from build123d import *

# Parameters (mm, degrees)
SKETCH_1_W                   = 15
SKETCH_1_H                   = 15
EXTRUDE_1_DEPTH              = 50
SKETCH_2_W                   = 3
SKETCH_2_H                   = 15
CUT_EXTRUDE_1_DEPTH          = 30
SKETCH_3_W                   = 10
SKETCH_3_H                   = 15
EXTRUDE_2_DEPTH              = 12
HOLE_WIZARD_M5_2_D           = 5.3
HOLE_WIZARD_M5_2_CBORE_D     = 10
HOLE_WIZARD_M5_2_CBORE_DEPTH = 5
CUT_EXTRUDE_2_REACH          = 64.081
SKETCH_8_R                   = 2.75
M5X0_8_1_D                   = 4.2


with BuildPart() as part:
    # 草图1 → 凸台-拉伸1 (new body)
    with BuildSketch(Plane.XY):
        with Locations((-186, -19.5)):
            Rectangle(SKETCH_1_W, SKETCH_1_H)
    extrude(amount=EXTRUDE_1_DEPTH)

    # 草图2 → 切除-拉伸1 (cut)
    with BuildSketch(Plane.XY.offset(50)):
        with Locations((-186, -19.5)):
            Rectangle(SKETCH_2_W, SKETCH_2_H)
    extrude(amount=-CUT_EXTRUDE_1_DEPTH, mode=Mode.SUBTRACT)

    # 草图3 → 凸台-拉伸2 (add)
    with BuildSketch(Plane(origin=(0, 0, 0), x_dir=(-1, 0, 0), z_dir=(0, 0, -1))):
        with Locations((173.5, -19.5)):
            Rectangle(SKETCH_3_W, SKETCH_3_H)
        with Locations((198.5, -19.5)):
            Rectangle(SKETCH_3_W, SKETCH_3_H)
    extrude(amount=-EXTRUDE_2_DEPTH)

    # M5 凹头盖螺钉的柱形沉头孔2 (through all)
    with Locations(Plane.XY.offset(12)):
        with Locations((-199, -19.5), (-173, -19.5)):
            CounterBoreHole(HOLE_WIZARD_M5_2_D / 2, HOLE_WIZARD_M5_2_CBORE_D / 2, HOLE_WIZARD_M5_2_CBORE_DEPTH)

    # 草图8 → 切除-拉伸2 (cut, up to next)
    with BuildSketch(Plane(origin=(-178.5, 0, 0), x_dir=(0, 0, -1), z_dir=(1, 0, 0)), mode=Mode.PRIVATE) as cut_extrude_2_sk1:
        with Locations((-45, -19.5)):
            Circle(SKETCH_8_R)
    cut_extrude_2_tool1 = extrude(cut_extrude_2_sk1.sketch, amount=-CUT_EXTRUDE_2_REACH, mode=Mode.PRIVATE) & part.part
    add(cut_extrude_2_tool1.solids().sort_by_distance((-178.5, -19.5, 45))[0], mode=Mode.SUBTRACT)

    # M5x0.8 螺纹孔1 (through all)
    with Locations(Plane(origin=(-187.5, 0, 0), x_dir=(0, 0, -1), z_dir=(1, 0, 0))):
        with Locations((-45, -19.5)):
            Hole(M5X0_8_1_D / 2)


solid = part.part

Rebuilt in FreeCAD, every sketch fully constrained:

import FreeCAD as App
import Part
import Sketcher

V = App.Vector


def add_polygon(sketch, points):
    """Adds a closed chain of lines whose ends are joined by coincident constraints."""
    first, n = sketch.GeometryCount, len(points)
    for a, b in zip(points, points[1:] + points[:1]):
        sketch.addGeometry(Part.LineSegment(App.Vector(*a, 0), App.Vector(*b, 0)), False)
    for i in range(n):
        sketch.addConstraint(Sketcher.Constraint("Coincident", first + i, 2, first + (i + 1) % n, 1))

doc = App.newDocument("Part")
body = doc.addObject("PartDesign::Body", "Body")

# Sketch on XY plane
sketch1 = body.newObject("Sketcher::SketchObject", "Sketch")
sketch1.AttachmentSupport = (doc.getObject("XY_Plane"), [""])
sketch1.MapMode = "FlatFace"
add_polygon(sketch1, [(-194, -12), (-194, -27), (-178, -27), (-178, -12)])  # lines 0-3
sketch1.addConstraint(Sketcher.Constraint("Vertical", 0))
sketch1.addConstraint(Sketcher.Constraint("Horizontal", 1))
sketch1.addConstraint(Sketcher.Constraint("Vertical", 2))
sketch1.addConstraint(Sketcher.Constraint("Horizontal", 3))
sketch1.addConstraint(Sketcher.Constraint("Equal", 3, 0))
sketch1.addConstraint(Sketcher.Constraint("DistanceX", 1, 1, 1, 2, 15.0))
sketch1.addConstraint(Sketcher.Constraint("DistanceY", 0, 2, -1, 1, 27.0))
sketch1.addConstraint(Sketcher.Constraint("DistanceX", 0, 2, -1, 1, 193.5))
pad1 = body.newObject("PartDesign::Pad", "Pad")
pad1.Profile = sketch1
pad1.Length = 50

# Sketch on XY plane
sketch2 = body.newObject("Sketcher::SketchObject", "Sketch001")
sketch2.AttachmentSupport = (doc.getObject("XY_Plane"), [""])
sketch2.MapMode = "FlatFace"
sketch2.AttachmentOffset = App.Placement(V(0, 0, 50), App.Rotation())
add_polygon(sketch2, [(-187.5, -12), (-187.5, -27), (-184.5, -27), (-184.5, -12)])  # lines 0-3
sketch2.addConstraint(Sketcher.Constraint("Vertical", 0))
sketch2.addConstraint(Sketcher.Constraint("Horizontal", 1))
sketch2.addConstraint(Sketcher.Constraint("Vertical", 2))
sketch2.addConstraint(Sketcher.Constraint("Horizontal", 3))
sketch2.addConstraint(Sketcher.Constraint("DistanceX", 1, 1, 1, 2, 3.0))
sketch2.addConstraint(Sketcher.Constraint("DistanceY", 0, 2, 0, 1, 15.0))
sketch2.addConstraint(Sketcher.Constraint("DistanceY", 0, 2, -1, 1, 27.0))
sketch2.addConstraint(Sketcher.Constraint("DistanceX", 0, 2, -1, 1, 187.5))
pocket1 = body.newObject("PartDesign::Pocket", "Pocket")
pocket1.Profile = sketch2
pocket1.Length = 30

# Sketch on XY plane
sketch3 = body.newObject("Sketcher::SketchObject", "Sketch002")
sketch3.AttachmentSupport = (doc.getObject("XY_Plane"), [""])
sketch3.MapMode = "FlatFace"
add_polygon(sketch3, [(-168, -12), (-168, -27), (-178, -27), (-178, -12)])  # lines 0-3
add_polygon(sketch3, [(-194, -12), (-194, -27), (-204, -27), (-204, -12)])  # lines 4-7
sketch3.addConstraint(Sketcher.Constraint("Vertical", 0))
sketch3.addConstraint(Sketcher.Constraint("Horizontal", 1))
sketch3.addConstraint(Sketcher.Constraint("Vertical", 2))
sketch3.addConstraint(Sketcher.Constraint("Horizontal", 3))
sketch3.addConstraint(Sketcher.Constraint("Vertical", 4))
sketch3.addConstraint(Sketcher.Constraint("Horizontal", 5))
sketch3.addConstraint(Sketcher.Constraint("Vertical", 6))
sketch3.addConstraint(Sketcher.Constraint("Horizontal", 7))
sketch3.addConstraint(Sketcher.Constraint("Horizontal", 1, 2, 4, 2))
sketch3.addConstraint(Sketcher.Constraint("Horizontal", 3, 2, 6, 2))
sketch3.addConstraint(Sketcher.Constraint("Equal", 3, 5))
sketch3.addConstraint(Sketcher.Constraint("DistanceX", 1, 2, 1, 1, 10.0))
sketch3.addConstraint(Sketcher.Constraint("DistanceY", 0, 2, 0, 1, 15.0))
sketch3.addConstraint(Sketcher.Constraint("DistanceY", 0, 2, -1, 1, 27.0))
sketch3.addConstraint(Sketcher.Constraint("DistanceX", 4, 2, 1, 2, 15.0))
sketch3.addConstraint(Sketcher.Constraint("DistanceX", 0, 2, -1, 1, 168.5))
pad2 = body.newObject("PartDesign::Pad", "Pad001")
pad2.Profile = sketch3
pad2.Length = 12

# Sketch on XY plane
sketch4 = body.newObject("Sketcher::SketchObject", "Sketch003")
sketch4.AttachmentSupport = (doc.getObject("XY_Plane"), [""])
sketch4.MapMode = "FlatFace"
sketch4.AttachmentOffset = App.Placement(V(0, 0, 12), App.Rotation())
sketch4.addGeometry(Part.Circle(V(-199, -19.5, 0), V(0, 0, 1), 2.6), False)
sketch4.addGeometry(Part.Circle(V(-173, -19.5, 0), V(0, 0, 1), 2.6), False)
sketch4.addConstraint(Sketcher.Constraint("Equal", 0, 1))
sketch4.addConstraint(Sketcher.Constraint("Horizontal", 0, 3, 1, 3))
sketch4.addConstraint(Sketcher.Constraint("Diameter", 0, 5.3))
sketch4.addConstraint(Sketcher.Constraint("DistanceX", 0, 3, -1, 1, 199.0))
sketch4.addConstraint(Sketcher.Constraint("DistanceX", 1, 3, -1, 1, 173.0))
sketch4.addConstraint(Sketcher.Constraint("DistanceY", 0, 3, -1, 1, 19.5))
doc.recompute()
hole = body.newObject("PartDesign::Hole", "Hole")
hole.Profile = sketch4
hole.ThreadType = "None"
hole.Diameter = 5.3
hole.DepthType = "ThroughAll"
hole.HoleCutType = "Counterbore"
hole.HoleCutDiameter = 10
hole.HoleCutDepth = 5

# Sketch on YZ plane
sketch5 = body.newObject("Sketcher::SketchObject", "Sketch004")
sketch5.AttachmentSupport = (doc.getObject("YZ_Plane"), [""])
sketch5.MapMode = "FlatFace"
sketch5.AttachmentOffset = App.Placement(V(0, 0, -178.5), App.Rotation())
sketch5.addGeometry(Part.Circle(V(-19.5, 45, 0), V(0, 0, 1), 2.8), False)
sketch5.addConstraint(Sketcher.Constraint("Diameter", 0, 5.5))
sketch5.addConstraint(Sketcher.Constraint("DistanceY", -1, 1, 0, 3, 45.0))
sketch5.addConstraint(Sketcher.Constraint("DistanceX", 0, 3, -1, 1, 19.5))
pocket2 = body.newObject("PartDesign::Pocket", "Pocket001")
pocket2.Profile = sketch5
pocket2.Type = "UpToFirst"

# Sketch on YZ plane
sketch6 = body.newObject("Sketcher::SketchObject", "Sketch005")
sketch6.AttachmentSupport = (doc.getObject("YZ_Plane"), [""])
sketch6.MapMode = "FlatFace"
sketch6.AttachmentOffset = App.Placement(V(0, 0, -187.5), App.Rotation())
sketch6.addGeometry(Part.Circle(V(-19.5, 45, 0), V(0, 0, 1), 2.1), False)
sketch6.addConstraint(Sketcher.Constraint("Diameter", 0, 4.2))
sketch6.addConstraint(Sketcher.Constraint("DistanceY", -1, 1, 0, 3, 45.0))
sketch6.addConstraint(Sketcher.Constraint("DistanceX", 0, 3, -1, 1, 19.5))
doc.recompute()
hole2 = body.newObject("PartDesign::Hole", "Hole001")
hole2.Profile = sketch6
hole2.ThreadType = "None"
hole2.Diameter = 4.2
hole2.DepthType = "ThroughAll"

doc.recompute()
